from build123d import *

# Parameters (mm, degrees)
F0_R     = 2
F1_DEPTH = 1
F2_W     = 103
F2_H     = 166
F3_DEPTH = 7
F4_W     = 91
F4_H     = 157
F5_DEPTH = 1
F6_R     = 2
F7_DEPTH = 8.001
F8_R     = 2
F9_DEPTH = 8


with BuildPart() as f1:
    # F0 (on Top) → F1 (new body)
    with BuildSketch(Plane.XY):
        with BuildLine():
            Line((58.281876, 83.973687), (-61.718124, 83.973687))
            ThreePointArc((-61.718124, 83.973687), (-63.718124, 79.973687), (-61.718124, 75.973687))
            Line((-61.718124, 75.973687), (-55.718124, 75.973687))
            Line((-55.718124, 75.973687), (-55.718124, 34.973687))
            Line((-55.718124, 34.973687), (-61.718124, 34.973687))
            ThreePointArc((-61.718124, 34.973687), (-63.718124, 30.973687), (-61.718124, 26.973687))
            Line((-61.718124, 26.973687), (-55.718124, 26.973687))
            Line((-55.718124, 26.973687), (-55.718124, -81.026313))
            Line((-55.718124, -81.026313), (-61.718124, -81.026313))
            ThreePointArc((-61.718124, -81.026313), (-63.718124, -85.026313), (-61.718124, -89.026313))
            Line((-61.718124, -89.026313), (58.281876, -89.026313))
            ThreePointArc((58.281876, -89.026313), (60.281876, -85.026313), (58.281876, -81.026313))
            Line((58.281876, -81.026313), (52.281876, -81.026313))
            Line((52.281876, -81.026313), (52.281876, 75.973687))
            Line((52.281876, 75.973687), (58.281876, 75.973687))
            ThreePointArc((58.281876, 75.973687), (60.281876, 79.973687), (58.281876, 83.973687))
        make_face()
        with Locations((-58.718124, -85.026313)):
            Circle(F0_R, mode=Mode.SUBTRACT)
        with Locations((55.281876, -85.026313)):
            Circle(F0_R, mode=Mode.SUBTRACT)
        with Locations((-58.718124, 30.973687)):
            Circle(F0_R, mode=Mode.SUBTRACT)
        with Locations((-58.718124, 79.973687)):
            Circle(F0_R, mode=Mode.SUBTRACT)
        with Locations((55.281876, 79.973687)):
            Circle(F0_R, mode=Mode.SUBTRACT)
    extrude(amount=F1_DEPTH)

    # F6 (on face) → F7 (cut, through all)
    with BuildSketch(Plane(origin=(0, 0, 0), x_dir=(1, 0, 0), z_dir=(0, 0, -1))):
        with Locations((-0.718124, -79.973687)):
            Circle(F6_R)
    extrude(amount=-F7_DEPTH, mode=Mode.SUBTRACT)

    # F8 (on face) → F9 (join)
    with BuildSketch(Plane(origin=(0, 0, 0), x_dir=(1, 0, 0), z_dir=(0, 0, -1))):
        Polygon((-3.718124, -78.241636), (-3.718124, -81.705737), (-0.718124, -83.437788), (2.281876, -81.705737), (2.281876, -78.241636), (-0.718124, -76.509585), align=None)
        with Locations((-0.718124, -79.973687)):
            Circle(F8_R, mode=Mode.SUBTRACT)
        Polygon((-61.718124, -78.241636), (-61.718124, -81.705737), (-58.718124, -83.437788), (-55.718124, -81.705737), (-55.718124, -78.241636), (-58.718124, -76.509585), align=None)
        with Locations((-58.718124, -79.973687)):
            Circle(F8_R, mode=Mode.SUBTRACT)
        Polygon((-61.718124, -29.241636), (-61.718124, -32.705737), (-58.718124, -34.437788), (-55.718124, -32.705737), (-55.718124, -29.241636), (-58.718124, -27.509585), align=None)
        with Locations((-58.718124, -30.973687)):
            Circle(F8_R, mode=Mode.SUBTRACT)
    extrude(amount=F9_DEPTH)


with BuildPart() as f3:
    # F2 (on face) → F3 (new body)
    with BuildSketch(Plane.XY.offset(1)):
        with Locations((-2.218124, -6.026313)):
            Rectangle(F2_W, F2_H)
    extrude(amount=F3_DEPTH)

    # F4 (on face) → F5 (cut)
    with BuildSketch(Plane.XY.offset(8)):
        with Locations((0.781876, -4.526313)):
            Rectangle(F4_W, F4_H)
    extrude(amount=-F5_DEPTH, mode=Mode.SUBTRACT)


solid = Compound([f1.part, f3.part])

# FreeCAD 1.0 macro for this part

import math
import FreeCAD as App
import Part
import Sketcher
Q = App.Units.Quantity


def add_polygon(sketch, points):
    """Adds a closed chain of lines whose ends are joined by coincident constraints."""
    first, n = sketch.GeometryCount, len(points)
    for a, b in zip(points, points[1:] + points[:1]):
        sketch.addGeometry(Part.LineSegment(App.Vector(*a, 0), App.Vector(*b, 0)), False)
    for i in range(n):
        sketch.addConstraint(Sketcher.Constraint("Coincident", first + i, 2, first + (i + 1) % n, 1))

doc = App.newDocument("Part")
body = doc.addObject("PartDesign::Body", "Body")

# Sketch on XY plane
sketch1 = body.newObject("Sketcher::SketchObject", "Sketch")
sketch1.AttachmentSupport = (doc.getObject("XY_Plane"), [""])
sketch1.MapMode = "FlatFace"
sketch1.addGeometry(Part.LineSegment(App.Vector(58.281876, 83.973687, 0), App.Vector(-61.718124, 83.973687, 0)), False)
sketch1.addGeometry(Part.ArcOfCircle(Part.Circle(App.Vector(-58.718124, 79.973687, 0), App.Vector(0, 0, 1), 5), math.radians(126.869898), math.radians(233.130102)), False)
sketch1.addGeometry(Part.LineSegment(App.Vector(-61.718124, 75.973687, 0), App.Vector(-55.718124, 75.973687, 0)), False)
sketch1.addGeometry(Part.LineSegment(App.Vector(-55.718124, 75.973687, 0), App.Vector(-55.718124, 34.973687, 0)), False)
sketch1.addGeometry(Part.LineSegment(App.Vector(-55.718124, 34.973687, 0), App.Vector(-61.718124, 34.973687, 0)), False)
sketch1.addGeometry(Part.ArcOfCircle(Part.Circle(App.Vector(-58.718124, 30.973687, 0), App.Vector(0, 0, 1), 5), math.radians(126.869898), math.radians(233.130102)), False)
sketch1.addGeometry(Part.LineSegment(App.Vector(-61.718124, 26.973687, 0), App.Vector(-55.718124, 26.973687, 0)), False)
sketch1.addGeometry(Part.LineSegment(App.Vector(-55.718124, 26.973687, 0), App.Vector(-55.718124, -81.026313, 0)), False)
sketch1.addGeometry(Part.LineSegment(App.Vector(-55.718124, -81.026313, 0), App.Vector(-61.718124, -81.026313, 0)), False)
sketch1.addGeometry(Part.ArcOfCircle(Part.Circle(App.Vector(-58.718124, -85.026313, 0), App.Vector(0, 0, 1), 5), math.radians(126.869898), math.radians(233.130102)), False)
sketch1.addGeometry(Part.LineSegment(App.Vector(-61.718124, -89.026313, 0), App.Vector(58.281876, -89.026313, 0)), False)
sketch1.addGeometry(Part.ArcOfCircle(Part.Circle(App.Vector(55.281876, -85.026313, 0), App.Vector(0, 0, 1), 5), math.radians(-53.130102), math.radians(53.130102)), False)
sketch1.addGeometry(Part.LineSegment(App.Vector(58.281876, -81.026313, 0), App.Vector(52.281876, -81.026313, 0)), False)
sketch1.addGeometry(Part.LineSegment(App.Vector(52.281876, -81.026313, 0), App.Vector(52.281876, 75.973687, 0)), False)
sketch1.addGeometry(Part.LineSegment(App.Vector(52.281876, 75.973687, 0), App.Vector(58.281876, 75.973687, 0)), False)
sketch1.addGeometry(Part.ArcOfCircle(Part.Circle(App.Vector(55.281876, 79.973687, 0), App.Vector(0, 0, 1), 5), math.radians(-53.130102), math.radians(53.130102)), False)
sketch1.addGeometry(Part.Circle(App.Vector(-58.718124, -85.026313, 0), App.Vector(0, 0, 1), 2), False)
sketch1.addGeometry(Part.Circle(App.Vector(55.281876, -85.026313, 0), App.Vector(0, 0, 1), 2), False)
sketch1.addGeometry(Part.Circle(App.Vector(-58.718124, 30.973687, 0), App.Vector(0, 0, 1), 2), False)
sketch1.addGeometry(Part.Circle(App.Vector(-58.718124, 79.973687, 0), App.Vector(0, 0, 1), 2), False)
sketch1.addGeometry(Part.Circle(App.Vector(55.281876, 79.973687, 0), App.Vector(0, 0, 1), 2), False)
sketch1.addConstraint(Sketcher.Constraint("Coincident", 0, 2, 1, 1))
sketch1.addConstraint(Sketcher.Constraint("Coincident", 1, 2, 2, 1))
sketch1.addConstraint(Sketcher.Constraint("Coincident", 2, 2, 3, 1))
sketch1.addConstraint(Sketcher.Constraint("Coincident", 3, 2, 4, 1))
sketch1.addConstraint(Sketcher.Constraint("Coincident", 4, 2, 5, 1))
sketch1.addConstraint(Sketcher.Constraint("Coincident", 5, 2, 6, 1))
sketch1.addConstraint(Sketcher.Constraint("Coincident", 6, 2, 7, 1))
sketch1.addConstraint(Sketcher.Constraint("Coincident", 7, 2, 8, 1))
sketch1.addConstraint(Sketcher.Constraint("Coincident", 8, 2, 9, 1))
sketch1.addConstraint(Sketcher.Constraint("Coincident", 9, 2, 10, 1))
sketch1.addConstraint(Sketcher.Constraint("Coincident", 10, 2, 11, 1))
sketch1.addConstraint(Sketcher.Constraint("Coincident", 11, 2, 12, 1))
sketch1.addConstraint(Sketcher.Constraint("Coincident", 12, 2, 13, 1))
sketch1.addConstraint(Sketcher.Constraint("Coincident", 13, 2, 14, 1))
sketch1.addConstraint(Sketcher.Constraint("Coincident", 14, 2, 15, 1))
sketch1.addConstraint(Sketcher.Constraint("Coincident", 15, 2, 0, 1))
sketch1.addConstraint(Sketcher.Constraint("Horizontal", 0))
sketch1.addConstraint(Sketcher.Constraint("Horizontal", 2))
sketch1.addConstraint(Sketcher.Constraint("Vertical", 3))
sketch1.addConstraint(Sketcher.Constraint("Horizontal", 4))
sketch1.addConstraint(Sketcher.Constraint("Horizontal", 6))
sketch1.addConstraint(Sketcher.Constraint("Vertical", 7))
sketch1.addConstraint(Sketcher.Constraint("Horizontal", 8))
sketch1.addConstraint(Sketcher.Constraint("Horizontal", 10))
sketch1.addConstraint(Sketcher.Constraint("Horizontal", 12))
sketch1.addConstraint(Sketcher.Constraint("Vertical", 13))
sketch1.addConstraint(Sketcher.Constraint("Horizontal", 14))
sketch1.addConstraint(Sketcher.Constraint("Coincident", 16, 3, 9, 3))
sketch1.addConstraint(Sketcher.Constraint("Coincident", 17, 3, 11, 3))
sketch1.addConstraint(Sketcher.Constraint("Coincident", 18, 3, 5, 3))
sketch1.addConstraint(Sketcher.Constraint("Coincident", 19, 3, 1, 3))
sketch1.addConstraint(Sketcher.Constraint("Coincident", 20, 3, 15, 3))
sketch1.addConstraint(Sketcher.Constraint("Equal", 1, 5))
sketch1.addConstraint(Sketcher.Constraint("Equal", 5, 9))
sketch1.addConstraint(Sketcher.Constraint("Equal", 9, 11))
sketch1.addConstraint(Sketcher.Constraint("Equal", 11, 15))
sketch1.addConstraint(Sketcher.Constraint("Equal", 16, 17))
sketch1.addConstraint(Sketcher.Constraint("Equal", 17, 18))
sketch1.addConstraint(Sketcher.Constraint("Equal", 18, 19))
sketch1.addConstraint(Sketcher.Constraint("Equal", 19, 20))
sketch1.addConstraint(Sketcher.Constraint("Horizontal", 9, 3, 11, 3))
sketch1.addConstraint(Sketcher.Constraint("Horizontal", 1, 3, 15, 3))
sketch1.addConstraint(Sketcher.Constraint("Horizontal", 8, 2, 11, 2))
sketch1.addConstraint(Sketcher.Constraint("Horizontal", 2, 2, 13, 2))
sketch1.addConstraint(Sketcher.Constraint("Vertical", 1, 3, 5, 3))
sketch1.addConstraint(Sketcher.Constraint("Vertical", 5, 3, 9, 3))
sketch1.addConstraint(Sketcher.Constraint("Vertical", 11, 3, 15, 3))
sketch1.addConstraint(Sketcher.Constraint("Vertical", 0, 2, 1, 2))
sketch1.addConstraint(Sketcher.Constraint("Vertical", 1, 2, 4, 2))
sketch1.addConstraint(Sketcher.Constraint("Vertical", 4, 2, 5, 2))
sketch1.addConstraint(Sketcher.Constraint("Vertical", 3, 2, 6, 2))
sketch1.addConstraint(Sketcher.Constraint("Vertical", 5, 2, 8, 2))
sketch1.addConstraint(Sketcher.Constraint("Vertical", 8, 2, 9, 2))
sketch1.addConstraint(Sketcher.Constraint("Equal", 8, 12))
sketch1.addConstraint(Sketcher.Constraint("Diameter", 16, 4.0))
sketch1.addConstraint(Sketcher.Constraint("Radius", 1, 5.0))
sketch1.addConstraint(Sketcher.Constraint("DistanceX", 0, 2, 0, 1, 120.0))
sketch1.addConstraint(Sketcher.Constraint("DistanceX", 2, 1, 2, 2, 6.0))
sketch1.addConstraint(Sketcher.Constraint("DistanceY", 3, 2, 3, 1, 41.0))
sketch1.addConstraint(Sketcher.Constraint("DistanceY", 7, 2, 7, 1, 108.0))
sketch1.addConstraint(Sketcher.Constraint("DistanceY", 13, 1, 13, 2, 157.0))
sketch1.addConstraint(Sketcher.Constraint("DistanceX", 1, 3, -1, 1, 58.718124))
sketch1.addConstraint(Sketcher.Constraint("DistanceY", -1, 1, 1, 3, 79.973687))
pad1 = body.newObject("PartDesign::Pad", "Pad")
pad1.Profile = sketch1
pad1.Length = 1

# Sketch on XY plane
sketch2 = body.newObject("Sketcher::SketchObject", "Sketch001")
sketch2.AttachmentSupport = (doc.getObject("XY_Plane"), [""])
sketch2.MapMode = "FlatFace"
sketch2.addGeometry(Part.Circle(App.Vector(-0.718124, 79.973687, 0), App.Vector(0, 0, 1), 2), False)
sketch2.addConstraint(Sketcher.Constraint("Diameter", 0, 4.0))
sketch2.addConstraint(Sketcher.Constraint("DistanceX", 0, 3, -1, 1, 0.718124))
sketch2.addConstraint(Sketcher.Constraint("DistanceY", -1, 1, 0, 3, 79.973687))
pocket1 = body.newObject("PartDesign::Pocket", "Pocket")
pocket1.Profile = sketch2
pocket1.Type = "ThroughAll"
pocket1.Reversed = True

# Sketch on XY plane
sketch3 = body.newObject("Sketcher::SketchObject", "Sketch002")
sketch3.AttachmentSupport = (doc.getObject("XY_Plane"), [""])
sketch3.MapMode = "FlatFace"
add_polygon(sketch3, [(-3.718124, 78.241636), (-3.718124, 81.705737), (-0.718124, 83.437788), (2.281876, 81.705737), (2.281876, 78.241636), (-0.718124, 76.509585)])  # lines 0-5
sketch3.addGeometry(Part.Circle(App.Vector(-0.718124, 79.973687, 0), App.Vector(0, 0, 1), 2), False)  # 6
add_polygon(sketch3, [(-61.718124, 78.241636), (-61.718124, 81.705737), (-58.718124, 83.437788), (-55.718124, 81.705737), (-55.718124, 78.241636), (-58.718124, 76.509585)])  # lines 7-12
sketch3.addGeometry(Part.Circle(App.Vector(-58.718124, 79.973687, 0), App.Vector(0, 0, 1), 2), False)  # 13
add_polygon(sketch3, [(-61.718124, 29.241636), (-61.718124, 32.705737), (-58.718124, 34.437788), (-55.718124, 32.705737), (-55.718124, 29.241636), (-58.718124, 27.509585)])  # lines 14-19
sketch3.addGeometry(Part.Circle(App.Vector(-58.718124, 30.973687, 0), App.Vector(0, 0, 1), 2), False)  # 20
sketch3.addConstraint(Sketcher.Constraint("Vertical", 0))
sketch3.addConstraint(Sketcher.Constraint("Vertical", 3))
sketch3.addConstraint(Sketcher.Constraint("Vertical", 7))
sketch3.addConstraint(Sketcher.Constraint("Vertical", 10))
sketch3.addConstraint(Sketcher.Constraint("Vertical", 14))
sketch3.addConstraint(Sketcher.Constraint("Vertical", 17))
sketch3.addConstraint(Sketcher.Constraint("Equal", 6, 13))
sketch3.addConstraint(Sketcher.Constraint("Equal", 13, 20))
sketch3.addConstraint(Sketcher.Constraint("Parallel", 1, 4))
sketch3.addConstraint(Sketcher.Constraint("Parallel", 2, 5))
sketch3.addConstraint(Sketcher.Constraint("Parallel", 4, 8))
sketch3.addConstraint(Sketcher.Constraint("Parallel", 5, 9))
sketch3.addConstraint(Sketcher.Constraint("Parallel", 8, 11))
sketch3.addConstraint(Sketcher.Constraint("Parallel", 9, 12))
sketch3.addConstraint(Sketcher.Constraint("Parallel", 11, 15))
sketch3.addConstraint(Sketcher.Constraint("Parallel", 12, 16))
sketch3.addConstraint(Sketcher.Constraint("Parallel", 15, 18))
sketch3.addConstraint(Sketcher.Constraint("Parallel", 16, 19))
sketch3.addConstraint(Sketcher.Constraint("Horizontal", 6, 3, 13, 3))
sketch3.addConstraint(Sketcher.Constraint("Horizontal", 0, 2, 2, 2))
sketch3.addConstraint(Sketcher.Constraint("Horizontal", 3, 2, 5, 2))
sketch3.addConstraint(Sketcher.Constraint("Horizontal", 2, 2, 7, 2))
sketch3.addConstraint(Sketcher.Constraint("Horizontal", 1, 2, 8, 2))
sketch3.addConstraint(Sketcher.Constraint("Horizontal", 7, 2, 9, 2))
sketch3.addConstraint(Sketcher.Constraint("Horizontal", 5, 2, 10, 2))
sketch3.addConstraint(Sketcher.Constraint("Horizontal", 4, 2, 11, 2))
sketch3.addConstraint(Sketcher.Constraint("Horizontal", 14, 2, 16, 2))
sketch3.addConstraint(Sketcher.Constraint("Horizontal", 17, 2, 19, 2))
sketch3.addConstraint(Sketcher.Constraint("Vertical", 13, 3, 20, 3))
sketch3.addConstraint(Sketcher.Constraint("Vertical", 6, 3, 1, 2))
sketch3.addConstraint(Sketcher.Constraint("Vertical", 1, 2, 4, 2))
sketch3.addConstraint(Sketcher.Constraint("Vertical", 20, 3, 8, 2))
sketch3.addConstraint(Sketcher.Constraint("Vertical", 12, 2, 14, 2))
sketch3.addConstraint(Sketcher.Constraint("Vertical", 11, 2, 15, 2))
sketch3.addConstraint(Sketcher.Constraint("Equal", 10, 14))
sketch3.addConstraint(Sketcher.Constraint("Diameter", 6, 4.0))
sketch3.addConstraint(Sketcher.Constraint("Angle", 1, Q("30.000003 deg")))
sketch3.addConstraint(Sketcher.Constraint("DistanceX", 13, 3, 6, 3, 58.0))
sketch3.addConstraint(Sketcher.Constraint("DistanceY", 20, 3, 13, 3, 49.0))
sketch3.addConstraint(Sketcher.Constraint("DistanceX", 0, 2, 6, 3, 3.0))
sketch3.addConstraint(Sketcher.Constraint("DistanceY", 0, 1, 0, 2, 3.464101))
sketch3.addConstraint(Sketcher.Constraint("DistanceY", 6, 3, 1, 2, 3.464101))
sketch3.addConstraint(Sketcher.Constraint("DistanceY", 14, 2, 12, 2, 45.535899))
sketch3.addConstraint(Sketcher.Constraint("DistanceX", 6, 3, -1, 1, 0.718124))
sketch3.addConstraint(Sketcher.Constraint("DistanceY", -1, 1, 6, 3, 79.973687))
pad2 = body.newObject("PartDesign::Pad", "Pad001")
pad2.Profile = sketch3
pad2.Length = 8
pad2.Reversed = True
body2 = doc.addObject("PartDesign::Body", "Body001")

# Sketch on XY plane
sketch4 = body2.newObject("Sketcher::SketchObject", "Sketch003")
sketch4.AttachmentSupport = (doc.getObject("XY_Plane001"), [""])
sketch4.MapMode = "FlatFace"
sketch4.AttachmentOffset = App.Placement(App.Vector(0, 0, 1), App.Rotation())
add_polygon(sketch4, [(-53.718124, 76.973687), (-53.718124, -89.026313), (49.281876, -89.026313), (49.281876, 76.973687)])  # lines 0-3
sketch4.addConstraint(Sketcher.Constraint("Vertical", 0))
sketch4.addConstraint(Sketcher.Constraint("Horizontal", 1))
sketch4.addConstraint(Sketcher.Constraint("Vertical", 2))
sketch4.addConstraint(Sketcher.Constraint("Horizontal", 3))
sketch4.addConstraint(Sketcher.Constraint("DistanceX", 1, 1, 1, 2, 103.0))
sketch4.addConstraint(Sketcher.Constraint("DistanceY", 0, 2, 0, 1, 166.0))
sketch4.addConstraint(Sketcher.Constraint("DistanceX", 0, 2, -1, 1, 53.718124))
sketch4.addConstraint(Sketcher.Constraint("DistanceY", 0, 2, -1, 1, 89.026313))
pad3 = body2.newObject("PartDesign::Pad", "Pad002")
pad3.Profile = sketch4
pad3.Length = 7

# Sketch on XY plane
sketch5 = body2.newObject("Sketcher::SketchObject", "Sketch004")
sketch5.AttachmentSupport = (doc.getObject("XY_Plane001"), [""])
sketch5.MapMode = "FlatFace"
sketch5.AttachmentOffset = App.Placement(App.Vector(0, 0, 8), App.Rotation())
add_polygon(sketch5, [(-44.718124, 73.973687), (-44.718124, -83.026313), (46.281876, -83.026313), (46.281876, 73.973687)])  # lines 0-3
sketch5.addConstraint(Sketcher.Constraint("Vertical", 0))
sketch5.addConstraint(Sketcher.Constraint("Horizontal", 1))
sketch5.addConstraint(Sketcher.Constraint("Vertical", 2))
sketch5.addConstraint(Sketcher.Constraint("Horizontal", 3))
sketch5.addConstraint(Sketcher.Constraint("DistanceX", 1, 1, 1, 2, 91.0))
sketch5.addConstraint(Sketcher.Constraint("DistanceY", 0, 2, 0, 1, 157.0))
sketch5.addConstraint(Sketcher.Constraint("DistanceX", 0, 2, -1, 1, 44.718124))
sketch5.addConstraint(Sketcher.Constraint("DistanceY", 0, 2, -1, 1, 83.026313))
pocket2 = body2.newObject("PartDesign::Pocket", "Pocket001")
pocket2.Profile = sketch5
pocket2.Length = 1

doc.recompute()
